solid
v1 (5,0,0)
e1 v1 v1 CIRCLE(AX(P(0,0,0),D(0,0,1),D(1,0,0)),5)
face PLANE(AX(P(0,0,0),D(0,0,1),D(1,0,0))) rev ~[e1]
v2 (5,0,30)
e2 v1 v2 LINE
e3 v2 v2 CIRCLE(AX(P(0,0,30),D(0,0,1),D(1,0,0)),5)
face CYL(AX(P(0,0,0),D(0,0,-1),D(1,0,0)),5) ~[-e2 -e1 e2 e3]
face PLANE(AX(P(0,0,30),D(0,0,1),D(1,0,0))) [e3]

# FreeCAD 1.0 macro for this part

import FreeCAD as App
import Part
import Sketcher

V = App.Vector
Q = App.Units.Quantity

doc = App.newDocument("Part")
body = doc.addObject("PartDesign::Body", "Body")

sketch1 = body.newObject("Sketcher::SketchObject", "Sketch")
sketch1.AttachmentSupport = (doc.getObject("XY_Plane"), [""])
sketch1.MapMode = "FlatFace"
sketch1.addGeometry(Part.Circle(V(0, 0, 0), V(0, 0, 1), 5), False)
sketch1.addConstraint([
    Sketcher.Constraint("Coincident", 0, 3, -1, 1),
    Sketcher.Constraint("Diameter", 0, Q("10 mm")),
])
pad1 = body.newObject("PartDesign::Pad", "Pad")
pad1.Profile = sketch1
pad1.Length = 30

doc.recompute()
